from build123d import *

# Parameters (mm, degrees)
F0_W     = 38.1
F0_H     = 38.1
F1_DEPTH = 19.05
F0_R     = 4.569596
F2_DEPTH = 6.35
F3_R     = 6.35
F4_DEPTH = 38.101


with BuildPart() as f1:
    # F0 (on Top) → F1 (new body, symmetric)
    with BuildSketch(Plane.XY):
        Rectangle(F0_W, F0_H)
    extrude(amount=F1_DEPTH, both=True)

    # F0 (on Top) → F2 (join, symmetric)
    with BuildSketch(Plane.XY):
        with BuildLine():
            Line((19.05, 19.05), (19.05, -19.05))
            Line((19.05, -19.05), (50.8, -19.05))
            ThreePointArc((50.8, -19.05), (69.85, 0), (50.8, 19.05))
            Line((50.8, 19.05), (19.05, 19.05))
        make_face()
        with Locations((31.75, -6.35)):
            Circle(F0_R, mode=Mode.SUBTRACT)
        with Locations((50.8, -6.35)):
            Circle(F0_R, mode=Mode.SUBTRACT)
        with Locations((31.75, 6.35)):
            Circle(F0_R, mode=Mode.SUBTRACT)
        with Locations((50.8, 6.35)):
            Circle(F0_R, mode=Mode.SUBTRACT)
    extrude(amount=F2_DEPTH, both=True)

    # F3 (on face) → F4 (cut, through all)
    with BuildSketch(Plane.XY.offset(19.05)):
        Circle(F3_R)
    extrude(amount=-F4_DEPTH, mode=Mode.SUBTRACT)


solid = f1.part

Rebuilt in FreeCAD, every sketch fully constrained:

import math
import FreeCAD as App
import Part
import Sketcher
from FreeCAD import Vector
Q = App.Units.Quantity


def add_polygon(sketch, points):
    """Adds a closed chain of lines whose ends are joined by coincident constraints."""
    first, n = sketch.GeometryCount, len(points)
    for a, b in zip(points, points[1:] + points[:1]):
        sketch.addGeometry(Part.LineSegment(App.Vector(*a, 0), App.Vector(*b, 0)), False)
    for i in range(n):
        sketch.addConstraint(Sketcher.Constraint("Coincident", first + i, 2, first + (i + 1) % n, 1))

doc = App.newDocument("Part")
body = doc.addObject("PartDesign::Body", "Body")

sketch1 = doc.addObject("Sketcher::SketchObject", "Sketch")
body.addObject(sketch1)
sketch1.AttachmentSupport = (doc.XY_Plane, [""])
sketch1.MapMode = "FlatFace"
add_polygon(sketch1, [(-19, 19), (-19, -19), (19, -19), (19, 19)])
sketch1.addConstraint([
    Sketcher.Constraint("Vertical", 0),
    Sketcher.Constraint("Horizontal", 1),
    Sketcher.Constraint("Vertical", 2),
    Sketcher.Constraint("Horizontal", 3),
    Sketcher.Constraint("Symmetric", 0, 2, 2, 2, -1, 1),
    Sketcher.Constraint("Equal", 3, 0),
    Sketcher.Constraint("DistanceX", 1, 1, 1, 2, Q("1.5 in")),
])
pad1 = doc.addObject("PartDesign::Pad", "Pad")
body.addObject(pad1)
pad1.Profile = sketch1
pad1.Length = Q("1.5 in")
pad1.Midplane = True

sketch2 = doc.addObject("Sketcher::SketchObject", "Sketch001")
body.addObject(sketch2)
sketch2.AttachmentSupport = (doc.XY_Plane, [""])
sketch2.MapMode = "FlatFace"
sketch2.addGeometry([
    Part.LineSegment(Vector(19.1, 19.1, 0), Vector(19.1, -19.1, 0)),
    Part.LineSegment(Vector(19.1, -19.1, 0), Vector(50.8, -19.1, 0)),
    Part.ArcOfCircle(Part.Circle(Vector(50.8, 0, 0), Vector(0, 0, 1), 19.1), math.radians(-90), math.radians(90)),
    Part.LineSegment(Vector(50.8, 19.1, 0), Vector(19.1, 19.1, 0)),
    Part.Circle(Vector(31.8, -6.3, 0), Vector(0, 0, 1), 4.6),
    Part.Circle(Vector(50.8, -6.3, 0), Vector(0, 0, 1), 4.6),
    Part.Circle(Vector(31.8, 6.3, 0), Vector(0, 0, 1), 4.6),
    Part.Circle(Vector(50.8, 6.3, 0), Vector(0, 0, 1), 4.6),
], False)
sketch2.addConstraint([
    Sketcher.Constraint("Coincident", 0, 2, 1, 1),
    Sketcher.Constraint("Tangent", 1, 2, 2, 1),
    Sketcher.Constraint("Tangent", 2, 2, 3, 1),
    Sketcher.Constraint("Coincident", 3, 2, 0, 1),
    Sketcher.Constraint("Vertical", 0),
    Sketcher.Constraint("Horizontal", 1),
    Sketcher.Constraint("Horizontal", 3),
    Sketcher.Constraint("Equal", 4, 5),
    Sketcher.Constraint("Equal", 5, 6),
    Sketcher.Constraint("Equal", 6, 7),
    Sketcher.Constraint("Symmetric", 4, 3, 6, 3, -1),
    Sketcher.Constraint("Symmetric", 5, 3, 7, 3, -1),
    Sketcher.Constraint("PointOnObject", 2, 3, -1),
    Sketcher.Constraint("Horizontal", 4, 3, 5, 3),
    Sketcher.Constraint("Vertical", 2, 3, 5, 3),
    Sketcher.Constraint("Radius", 2, Q("0.75 in")),
    Sketcher.Constraint("DistanceX", -1, 1, 2, 3, Q("2 in")),
    Sketcher.Constraint("DistanceY", 0, 2, 6, 3, Q("1 in")),
    Sketcher.Constraint("DistanceX", 1, 1, 1, 2, Q("1.25 in")),
    Sketcher.Constraint("DistanceX", 0, 2, 4, 3, Q("0.5 in")),
    Sketcher.Constraint("Diameter", 4, Q("9.139192 mm")),
])
pad2 = doc.addObject("PartDesign::Pad", "Pad001")
body.addObject(pad2)
pad2.Profile = sketch2
pad2.Length = Q("0.5 in")
pad2.Midplane = True

sketch3 = doc.addObject("Sketcher::SketchObject", "Sketch002")
body.addObject(sketch3)
sketch3.AttachmentSupport = (doc.XY_Plane, [""])
sketch3.MapMode = "FlatFace"
sketch3.AttachmentOffset = App.Placement(Vector(0, 0, 0.75 * 25.4), App.Rotation())
sketch3.addGeometry(Part.Circle(Vector(0, 0, 0), Vector(0, 0, 1), 6), False)
sketch3.addConstraint([
    Sketcher.Constraint("Coincident", 0, 3, -1, 1),
    Sketcher.Constraint("Diameter", 0, Q("0.5 in")),
])
pocket1 = doc.addObject("PartDesign::Pocket", "Pocket")
body.addObject(pocket1)
pocket1.Profile = sketch3
pocket1.Type = "ThroughAll"

doc.recompute()
